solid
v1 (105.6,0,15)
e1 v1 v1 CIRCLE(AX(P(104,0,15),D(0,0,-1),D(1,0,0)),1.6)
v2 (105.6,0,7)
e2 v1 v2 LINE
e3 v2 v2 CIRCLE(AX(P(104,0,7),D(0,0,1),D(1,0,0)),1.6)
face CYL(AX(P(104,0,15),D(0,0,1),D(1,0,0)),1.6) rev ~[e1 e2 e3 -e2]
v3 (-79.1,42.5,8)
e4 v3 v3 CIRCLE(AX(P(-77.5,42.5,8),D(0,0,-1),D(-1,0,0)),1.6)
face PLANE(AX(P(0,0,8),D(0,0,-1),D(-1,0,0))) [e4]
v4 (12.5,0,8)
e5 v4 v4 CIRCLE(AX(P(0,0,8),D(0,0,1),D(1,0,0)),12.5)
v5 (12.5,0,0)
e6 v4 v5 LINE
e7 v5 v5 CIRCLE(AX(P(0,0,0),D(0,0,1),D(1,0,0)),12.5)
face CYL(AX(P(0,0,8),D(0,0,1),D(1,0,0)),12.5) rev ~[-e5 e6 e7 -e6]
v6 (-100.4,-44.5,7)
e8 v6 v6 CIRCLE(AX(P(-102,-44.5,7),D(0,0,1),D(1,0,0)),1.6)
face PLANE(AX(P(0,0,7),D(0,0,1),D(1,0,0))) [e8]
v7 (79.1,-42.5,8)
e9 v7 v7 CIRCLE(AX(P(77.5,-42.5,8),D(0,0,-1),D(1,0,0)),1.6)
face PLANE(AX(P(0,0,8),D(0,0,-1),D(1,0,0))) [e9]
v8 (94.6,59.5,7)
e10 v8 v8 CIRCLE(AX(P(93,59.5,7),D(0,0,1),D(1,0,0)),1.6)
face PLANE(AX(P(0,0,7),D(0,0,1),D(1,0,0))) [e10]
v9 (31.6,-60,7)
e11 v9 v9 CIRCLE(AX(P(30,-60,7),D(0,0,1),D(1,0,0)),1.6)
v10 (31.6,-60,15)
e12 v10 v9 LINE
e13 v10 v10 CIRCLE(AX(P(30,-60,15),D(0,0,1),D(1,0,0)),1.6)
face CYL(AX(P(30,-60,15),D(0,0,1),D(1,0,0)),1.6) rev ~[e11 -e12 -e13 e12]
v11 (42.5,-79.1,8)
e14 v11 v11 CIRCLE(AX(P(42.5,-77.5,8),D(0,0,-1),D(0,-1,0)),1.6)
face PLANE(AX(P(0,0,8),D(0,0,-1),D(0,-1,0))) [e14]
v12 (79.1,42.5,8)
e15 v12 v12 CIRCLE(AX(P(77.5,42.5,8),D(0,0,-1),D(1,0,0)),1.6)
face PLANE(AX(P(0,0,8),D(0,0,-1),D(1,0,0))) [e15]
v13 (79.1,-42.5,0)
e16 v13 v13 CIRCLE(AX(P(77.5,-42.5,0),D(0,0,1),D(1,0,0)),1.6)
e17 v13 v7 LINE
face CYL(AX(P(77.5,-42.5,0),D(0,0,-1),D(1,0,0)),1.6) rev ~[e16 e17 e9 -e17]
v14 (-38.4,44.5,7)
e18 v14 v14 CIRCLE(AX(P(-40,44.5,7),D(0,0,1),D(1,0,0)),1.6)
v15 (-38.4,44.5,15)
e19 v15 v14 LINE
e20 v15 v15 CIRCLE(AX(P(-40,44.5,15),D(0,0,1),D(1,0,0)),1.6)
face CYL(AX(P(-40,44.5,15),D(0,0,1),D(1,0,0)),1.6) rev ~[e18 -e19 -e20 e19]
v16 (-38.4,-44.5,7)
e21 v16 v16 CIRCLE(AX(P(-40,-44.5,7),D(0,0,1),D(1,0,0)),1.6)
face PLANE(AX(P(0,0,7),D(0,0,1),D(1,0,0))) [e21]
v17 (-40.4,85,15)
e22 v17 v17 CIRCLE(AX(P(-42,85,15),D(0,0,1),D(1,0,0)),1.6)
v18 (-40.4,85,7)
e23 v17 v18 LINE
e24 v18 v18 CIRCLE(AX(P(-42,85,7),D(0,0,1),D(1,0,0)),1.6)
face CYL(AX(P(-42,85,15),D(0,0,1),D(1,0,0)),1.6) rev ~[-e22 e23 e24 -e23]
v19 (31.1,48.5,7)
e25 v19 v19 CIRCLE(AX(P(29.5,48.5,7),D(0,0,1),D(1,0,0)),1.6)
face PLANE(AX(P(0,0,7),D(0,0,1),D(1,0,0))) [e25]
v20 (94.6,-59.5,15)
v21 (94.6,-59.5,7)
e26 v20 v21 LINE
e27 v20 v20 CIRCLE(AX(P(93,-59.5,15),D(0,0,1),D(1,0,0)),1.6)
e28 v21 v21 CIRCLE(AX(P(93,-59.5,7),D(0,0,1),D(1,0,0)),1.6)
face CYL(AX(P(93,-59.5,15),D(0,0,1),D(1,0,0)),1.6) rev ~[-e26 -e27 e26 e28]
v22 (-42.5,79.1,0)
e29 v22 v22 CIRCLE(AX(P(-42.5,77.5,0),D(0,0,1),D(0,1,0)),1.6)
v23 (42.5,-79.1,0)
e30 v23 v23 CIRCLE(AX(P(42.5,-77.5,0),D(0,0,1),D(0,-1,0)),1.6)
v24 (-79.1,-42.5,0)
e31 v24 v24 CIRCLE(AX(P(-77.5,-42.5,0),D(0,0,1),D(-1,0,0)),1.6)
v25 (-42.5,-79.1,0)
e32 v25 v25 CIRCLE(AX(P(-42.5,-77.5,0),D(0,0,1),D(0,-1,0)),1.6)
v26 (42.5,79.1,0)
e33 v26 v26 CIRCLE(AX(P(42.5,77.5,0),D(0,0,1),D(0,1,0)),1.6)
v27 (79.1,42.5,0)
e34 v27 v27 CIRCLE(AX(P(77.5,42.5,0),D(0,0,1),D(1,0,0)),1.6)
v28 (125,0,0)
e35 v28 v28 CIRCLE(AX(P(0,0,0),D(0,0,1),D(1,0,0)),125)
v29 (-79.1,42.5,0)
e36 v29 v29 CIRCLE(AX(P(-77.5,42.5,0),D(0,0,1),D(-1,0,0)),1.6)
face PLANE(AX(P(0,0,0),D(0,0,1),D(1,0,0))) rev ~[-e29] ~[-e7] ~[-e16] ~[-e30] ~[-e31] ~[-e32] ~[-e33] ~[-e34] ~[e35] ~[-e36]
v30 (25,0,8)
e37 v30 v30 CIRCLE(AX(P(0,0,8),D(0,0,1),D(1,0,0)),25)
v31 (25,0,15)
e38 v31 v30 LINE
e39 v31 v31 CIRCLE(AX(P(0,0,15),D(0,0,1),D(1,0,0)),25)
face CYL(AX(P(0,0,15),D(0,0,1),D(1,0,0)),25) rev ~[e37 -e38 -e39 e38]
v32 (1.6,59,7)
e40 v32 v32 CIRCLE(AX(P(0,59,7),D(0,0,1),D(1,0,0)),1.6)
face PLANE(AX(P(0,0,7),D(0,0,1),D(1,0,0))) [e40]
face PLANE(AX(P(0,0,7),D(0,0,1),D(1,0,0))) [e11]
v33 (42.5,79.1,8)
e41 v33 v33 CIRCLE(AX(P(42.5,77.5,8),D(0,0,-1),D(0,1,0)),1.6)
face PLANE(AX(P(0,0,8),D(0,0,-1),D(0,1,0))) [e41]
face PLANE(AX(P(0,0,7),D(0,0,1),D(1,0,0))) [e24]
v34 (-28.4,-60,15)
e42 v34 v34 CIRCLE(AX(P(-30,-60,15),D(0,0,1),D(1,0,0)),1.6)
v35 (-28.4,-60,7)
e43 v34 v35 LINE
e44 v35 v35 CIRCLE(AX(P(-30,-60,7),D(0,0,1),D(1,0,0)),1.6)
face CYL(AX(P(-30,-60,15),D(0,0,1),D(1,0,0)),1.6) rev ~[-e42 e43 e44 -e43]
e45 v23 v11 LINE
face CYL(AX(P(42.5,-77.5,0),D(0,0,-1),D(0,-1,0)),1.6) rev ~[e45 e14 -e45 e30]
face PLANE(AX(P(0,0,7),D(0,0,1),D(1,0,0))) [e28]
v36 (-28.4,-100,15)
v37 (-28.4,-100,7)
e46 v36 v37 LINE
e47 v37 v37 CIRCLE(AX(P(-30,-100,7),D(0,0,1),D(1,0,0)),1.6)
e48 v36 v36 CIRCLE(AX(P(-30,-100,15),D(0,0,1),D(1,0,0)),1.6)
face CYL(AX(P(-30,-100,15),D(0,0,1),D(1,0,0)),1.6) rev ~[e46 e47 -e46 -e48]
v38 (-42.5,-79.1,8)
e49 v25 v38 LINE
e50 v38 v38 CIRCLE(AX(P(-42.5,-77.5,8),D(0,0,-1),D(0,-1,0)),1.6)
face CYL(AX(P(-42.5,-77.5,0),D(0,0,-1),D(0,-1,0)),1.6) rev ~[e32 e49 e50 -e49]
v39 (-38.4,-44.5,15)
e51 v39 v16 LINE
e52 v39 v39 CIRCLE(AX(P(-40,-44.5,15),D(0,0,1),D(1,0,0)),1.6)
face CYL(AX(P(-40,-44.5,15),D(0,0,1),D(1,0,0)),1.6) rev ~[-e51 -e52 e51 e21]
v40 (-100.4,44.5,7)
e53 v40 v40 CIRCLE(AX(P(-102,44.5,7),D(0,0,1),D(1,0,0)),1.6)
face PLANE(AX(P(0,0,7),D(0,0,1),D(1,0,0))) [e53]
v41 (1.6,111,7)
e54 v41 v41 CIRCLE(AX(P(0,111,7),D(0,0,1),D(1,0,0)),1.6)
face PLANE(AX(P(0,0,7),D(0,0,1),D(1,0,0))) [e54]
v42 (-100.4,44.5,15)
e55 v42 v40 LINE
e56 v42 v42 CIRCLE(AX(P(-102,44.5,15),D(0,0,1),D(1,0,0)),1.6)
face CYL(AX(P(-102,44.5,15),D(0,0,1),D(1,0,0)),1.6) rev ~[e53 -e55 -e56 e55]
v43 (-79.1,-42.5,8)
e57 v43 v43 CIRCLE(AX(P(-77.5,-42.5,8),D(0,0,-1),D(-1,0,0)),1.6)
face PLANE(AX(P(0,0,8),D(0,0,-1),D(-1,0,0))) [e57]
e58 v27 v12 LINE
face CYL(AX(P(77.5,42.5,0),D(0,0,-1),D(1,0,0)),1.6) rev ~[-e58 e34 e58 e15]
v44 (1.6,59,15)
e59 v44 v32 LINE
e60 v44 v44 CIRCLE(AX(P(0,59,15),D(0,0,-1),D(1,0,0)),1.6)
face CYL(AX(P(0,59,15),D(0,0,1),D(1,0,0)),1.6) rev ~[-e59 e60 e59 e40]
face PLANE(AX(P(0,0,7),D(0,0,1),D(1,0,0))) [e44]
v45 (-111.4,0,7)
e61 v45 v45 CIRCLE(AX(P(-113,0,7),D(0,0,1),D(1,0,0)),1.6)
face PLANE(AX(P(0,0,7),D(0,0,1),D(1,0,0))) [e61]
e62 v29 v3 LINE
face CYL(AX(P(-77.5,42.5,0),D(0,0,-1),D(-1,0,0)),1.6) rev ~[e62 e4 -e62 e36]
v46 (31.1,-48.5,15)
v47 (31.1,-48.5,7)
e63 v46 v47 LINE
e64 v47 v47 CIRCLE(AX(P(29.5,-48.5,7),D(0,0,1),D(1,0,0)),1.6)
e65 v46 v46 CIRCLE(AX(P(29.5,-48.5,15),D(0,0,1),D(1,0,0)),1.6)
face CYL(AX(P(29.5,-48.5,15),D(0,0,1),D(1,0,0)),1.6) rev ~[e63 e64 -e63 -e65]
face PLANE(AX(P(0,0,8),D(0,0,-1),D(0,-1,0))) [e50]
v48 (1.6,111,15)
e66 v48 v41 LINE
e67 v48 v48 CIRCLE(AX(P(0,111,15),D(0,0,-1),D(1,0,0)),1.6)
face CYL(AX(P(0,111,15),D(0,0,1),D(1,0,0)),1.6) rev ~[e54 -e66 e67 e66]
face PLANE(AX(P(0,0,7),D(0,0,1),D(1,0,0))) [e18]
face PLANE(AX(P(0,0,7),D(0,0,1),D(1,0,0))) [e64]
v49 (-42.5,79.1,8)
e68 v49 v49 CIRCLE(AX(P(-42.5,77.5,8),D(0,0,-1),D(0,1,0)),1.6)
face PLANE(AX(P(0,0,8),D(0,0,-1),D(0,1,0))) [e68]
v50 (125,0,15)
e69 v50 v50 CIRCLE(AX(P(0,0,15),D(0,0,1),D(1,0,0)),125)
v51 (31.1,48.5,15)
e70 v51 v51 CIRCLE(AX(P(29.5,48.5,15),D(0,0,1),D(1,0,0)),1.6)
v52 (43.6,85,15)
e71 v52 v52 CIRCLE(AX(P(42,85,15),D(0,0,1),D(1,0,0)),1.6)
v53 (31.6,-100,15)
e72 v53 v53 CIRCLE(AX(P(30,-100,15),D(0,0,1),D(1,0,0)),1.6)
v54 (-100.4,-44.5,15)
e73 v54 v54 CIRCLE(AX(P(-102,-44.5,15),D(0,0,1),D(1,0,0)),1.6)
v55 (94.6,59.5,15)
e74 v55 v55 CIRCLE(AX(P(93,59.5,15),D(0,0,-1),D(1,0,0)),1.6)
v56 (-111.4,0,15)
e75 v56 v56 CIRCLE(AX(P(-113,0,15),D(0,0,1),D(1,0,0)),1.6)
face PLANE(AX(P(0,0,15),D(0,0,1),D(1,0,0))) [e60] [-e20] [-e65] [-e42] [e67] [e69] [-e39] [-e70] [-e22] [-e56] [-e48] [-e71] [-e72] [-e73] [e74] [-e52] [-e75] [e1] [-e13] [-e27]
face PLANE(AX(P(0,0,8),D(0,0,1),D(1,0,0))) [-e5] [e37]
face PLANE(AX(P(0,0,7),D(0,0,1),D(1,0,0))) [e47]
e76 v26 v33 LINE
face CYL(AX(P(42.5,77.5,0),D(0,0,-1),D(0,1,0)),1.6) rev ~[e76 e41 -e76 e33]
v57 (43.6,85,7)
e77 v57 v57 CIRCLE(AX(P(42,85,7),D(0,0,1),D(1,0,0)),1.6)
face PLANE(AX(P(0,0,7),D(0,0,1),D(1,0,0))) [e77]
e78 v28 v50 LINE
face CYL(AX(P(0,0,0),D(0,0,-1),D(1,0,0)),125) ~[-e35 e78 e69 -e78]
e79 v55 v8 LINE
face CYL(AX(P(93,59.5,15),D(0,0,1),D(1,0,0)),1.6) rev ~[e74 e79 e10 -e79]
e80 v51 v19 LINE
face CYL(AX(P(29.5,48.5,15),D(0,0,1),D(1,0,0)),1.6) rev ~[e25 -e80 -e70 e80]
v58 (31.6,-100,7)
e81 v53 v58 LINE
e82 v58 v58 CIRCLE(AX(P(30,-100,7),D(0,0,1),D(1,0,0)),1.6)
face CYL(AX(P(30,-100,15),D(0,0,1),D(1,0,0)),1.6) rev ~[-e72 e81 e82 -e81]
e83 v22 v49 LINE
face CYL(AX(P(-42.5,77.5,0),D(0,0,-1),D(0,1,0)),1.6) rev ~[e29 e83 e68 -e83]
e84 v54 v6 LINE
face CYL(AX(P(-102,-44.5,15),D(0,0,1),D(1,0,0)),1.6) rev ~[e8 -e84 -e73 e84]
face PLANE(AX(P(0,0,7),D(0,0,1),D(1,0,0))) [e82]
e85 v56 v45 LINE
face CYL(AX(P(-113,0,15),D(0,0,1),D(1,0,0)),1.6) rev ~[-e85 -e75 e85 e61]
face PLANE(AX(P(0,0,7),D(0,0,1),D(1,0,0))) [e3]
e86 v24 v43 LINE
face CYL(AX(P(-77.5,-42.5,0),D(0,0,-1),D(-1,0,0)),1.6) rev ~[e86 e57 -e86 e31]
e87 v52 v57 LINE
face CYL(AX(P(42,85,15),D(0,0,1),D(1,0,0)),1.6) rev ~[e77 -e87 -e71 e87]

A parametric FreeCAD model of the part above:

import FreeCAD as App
import Part
import Sketcher
from FreeCAD import Vector

doc = App.newDocument("Part")
body = doc.addObject("PartDesign::Body", "Body")

# Sketch on XY plane
sketch1 = body.newObject("Sketcher::SketchObject", "Sketch")
sketch1.AttachmentSupport = (doc.getObject("XY_Plane"), [""])
sketch1.MapMode = "FlatFace"
sketch1.addGeometry(Part.Circle(Vector(0, 0, 0), Vector(0, 0, 1), 125), False)
sketch1.addConstraint([
    Sketcher.Constraint("Coincident", 0, 3, -1, 1),
    Sketcher.Constraint("Diameter", 0, 250.0),
])
pad1 = body.newObject("PartDesign::Pad", "Pad")
pad1.Profile = sketch1
pad1.Length = 15

# Sketch on XY plane
sketch2 = body.newObject("Sketcher::SketchObject", "Sketch001")
sketch2.AttachmentSupport = (doc.getObject("XY_Plane"), [""])
sketch2.MapMode = "FlatFace"
sketch2.AttachmentOffset = App.Placement(Vector(0, 0, 15), App.Rotation())
sketch2.addGeometry(Part.Circle(Vector(0, 0, 0), Vector(0, 0, 1), 25), False)
sketch2.addConstraint([
    Sketcher.Constraint("Coincident", 0, 3, -1, 1),
    Sketcher.Constraint("Diameter", 0, 50.0),
])
pocket1 = body.newObject("PartDesign::Pocket", "Pocket")
pocket1.Profile = sketch2
pocket1.Length = 7

# Sketch on XY plane
sketch3 = body.newObject("Sketcher::SketchObject", "Sketch002")
sketch3.AttachmentSupport = (doc.getObject("XY_Plane"), [""])
sketch3.MapMode = "FlatFace"
sketch3.AttachmentOffset = App.Placement(Vector(0, 0, 8), App.Rotation())
sketch3.addGeometry(Part.Circle(Vector(0, 0, 0), Vector(0, 0, 1), 12.5), False)
sketch3.addConstraint([
    Sketcher.Constraint("Coincident", 0, 3, -1, 1),
    Sketcher.Constraint("Diameter", 0, 25.0),
])
pocket2 = body.newObject("PartDesign::Pocket", "Pocket001")
pocket2.Profile = sketch3
pocket2.Type = "ThroughAll"

# Sketch on XY plane
sketch4 = body.newObject("Sketcher::SketchObject", "Sketch003")
sketch4.AttachmentSupport = (doc.getObject("XY_Plane"), [""])
sketch4.MapMode = "FlatFace"
sketch4.AttachmentOffset = App.Placement(Vector(0, 0, 15), App.Rotation())
sketch4.addGeometry([
    Part.Circle(Vector(29.5, -48.5, 0), Vector(0, 0, 1), 1.6),  # 0
    Part.Circle(Vector(104, 0, 0), Vector(0, 0, 1), 1.6),  # 1
    Part.Circle(Vector(93, 59.5, 0), Vector(0, 0, 1), 1.6),  # 2
    Part.Circle(Vector(29.5, 48.5, 0), Vector(0, 0, 1), 1.6),  # 3
    Part.Circle(Vector(93, -59.5, 0), Vector(0, 0, 1), 1.6),  # 4
], False)
sketch4.addConstraint([
    Sketcher.Constraint("Equal", 0, 1),
    Sketcher.Constraint("Equal", 1, 2),
    Sketcher.Constraint("Equal", 2, 3),
    Sketcher.Constraint("Equal", 3, 4),
    Sketcher.Constraint("Symmetric", 0, 3, 3, 3, -1),
    Sketcher.Constraint("Symmetric", 2, 3, 4, 3, -1),
    Sketcher.Constraint("PointOnObject", 1, 3, -1),
    Sketcher.Constraint("Diameter", 0, 3.2),
    Sketcher.Constraint("DistanceX", -1, 1, 1, 3, 104.0),
    Sketcher.Constraint("DistanceX", -1, 1, 2, 3, 93.0),
    Sketcher.Constraint("DistanceY", 0, 3, 3, 3, 97.0),
    Sketcher.Constraint("DistanceY", 4, 3, 2, 3, 119.0),
    Sketcher.Constraint("DistanceX", -1, 1, 0, 3, 29.5),
])
pocket3 = body.newObject("PartDesign::Pocket", "Pocket002")
pocket3.Profile = sketch4
pocket3.Length = 8

# Sketch on XY plane
sketch5 = body.newObject("Sketcher::SketchObject", "Sketch004")
sketch5.AttachmentSupport = (doc.getObject("XY_Plane"), [""])
sketch5.MapMode = "FlatFace"
sketch5.AttachmentOffset = App.Placement(Vector(0, 0, 15), App.Rotation())
sketch5.addGeometry([
    Part.Circle(Vector(-40, 44.5, 0), Vector(0, 0, 1), 1.6),  # 0
    Part.Circle(Vector(-40, -44.5, 0), Vector(0, 0, 1), 1.6),  # 1
    Part.Circle(Vector(-102, 44.5, 0), Vector(0, 0, 1), 1.6),  # 2
    Part.Circle(Vector(-102, -44.5, 0), Vector(0, 0, 1), 1.6),  # 3
    Part.Circle(Vector(-113, 0, 0), Vector(0, 0, 1), 1.6),  # 4
], False)
sketch5.addConstraint([
    Sketcher.Constraint("Equal", 0, 1),
    Sketcher.Constraint("Equal", 1, 2),
    Sketcher.Constraint("Equal", 2, 3),
    Sketcher.Constraint("Equal", 3, 4),
    Sketcher.Constraint("Symmetric", 0, 3, 1, 3, -1),
    Sketcher.Constraint("Symmetric", 2, 3, 3, 3, -1),
    Sketcher.Constraint("PointOnObject", 4, 3, -1),
    Sketcher.Constraint("Horizontal", 0, 3, 2, 3),
    Sketcher.Constraint("Diameter", 0, 3.2),
    Sketcher.Constraint("DistanceX", 0, 3, -1, 1, 40.0),
    Sketcher.Constraint("DistanceY", 1, 3, 0, 3, 89.0),
    Sketcher.Constraint("DistanceX", 2, 3, 0, 3, 62.0),
    Sketcher.Constraint("DistanceX", 4, 3, 2, 3, 11.0),
])
pocket4 = body.newObject("PartDesign::Pocket", "Pocket003")
pocket4.Profile = sketch5
pocket4.Length = 8

# Sketch on XY plane
sketch6 = body.newObject("Sketcher::SketchObject", "Sketch005")
sketch6.AttachmentSupport = (doc.getObject("XY_Plane"), [""])
sketch6.MapMode = "FlatFace"
sketch6.AttachmentOffset = App.Placement(Vector(0, 0, 15), App.Rotation())
sketch6.addGeometry([
    Part.Circle(Vector(-42, 85, 0), Vector(0, 0, 1), 1.6),
    Part.Circle(Vector(0, 111, 0), Vector(0, 0, 1), 1.6),
    Part.Circle(Vector(0, 59, 0), Vector(0, 0, 1), 1.6),
    Part.Circle(Vector(42, 85, 0), Vector(0, 0, 1), 1.6),
], False)
sketch6.addConstraint([
    Sketcher.Constraint("Equal", 0, 1),
    Sketcher.Constraint("Equal", 1, 2),
    Sketcher.Constraint("Equal", 2, 3),
    Sketcher.Constraint("Symmetric", 0, 3, 3, 3, -2),
    Sketcher.Constraint("PointOnObject", 1, 3, -2),
    Sketcher.Constraint("PointOnObject", 2, 3, -2),
    Sketcher.Constraint("Diameter", 0, 3.2),
    Sketcher.Constraint("DistanceY", -1, 1, 0, 3, 85.0),
    Sketcher.Constraint("DistanceY", 2, 3, 1, 3, 52.0),
    Sketcher.Constraint("DistanceX", 0, 3, 3, 3, 84.0),
    Sketcher.Constraint("DistanceY", -1, 1, 1, 3, 111.0),
])
pocket5 = body.newObject("PartDesign::Pocket", "Pocket004")
pocket5.Profile = sketch6
pocket5.Length = 8

# Sketch on XY plane
sketch7 = body.newObject("Sketcher::SketchObject", "Sketch006")
sketch7.AttachmentSupport = (doc.getObject("XY_Plane"), [""])
sketch7.MapMode = "FlatFace"
sketch7.AttachmentOffset = App.Placement(Vector(0, 0, 15), App.Rotation())
sketch7.addGeometry([
    Part.Circle(Vector(-30, -60, 0), Vector(0, 0, 1), 1.6),
    Part.Circle(Vector(30, -60, 0), Vector(0, 0, 1), 1.6),
    Part.Circle(Vector(-30, -100, 0), Vector(0, 0, 1), 1.6),
    Part.Circle(Vector(30, -100, 0), Vector(0, 0, 1), 1.6),
], False)
sketch7.addConstraint([
    Sketcher.Constraint("Equal", 0, 1),
    Sketcher.Constraint("Equal", 1, 2),
    Sketcher.Constraint("Equal", 2, 3),
    Sketcher.Constraint("Symmetric", 0, 3, 1, 3, -2),
    Sketcher.Constraint("Symmetric", 2, 3, 3, 3, -2),
    Sketcher.Constraint("Vertical", 0, 3, 2, 3),
    Sketcher.Constraint("Diameter", 0, 3.2),
    Sketcher.Constraint("DistanceY", 0, 3, -1, 1, 60.0),
    Sketcher.Constraint("DistanceX", 0, 3, 1, 3, 60.0),
    Sketcher.Constraint("DistanceY", 2, 3, 0, 3, 40.0),
])
pocket6 = body.newObject("PartDesign::Pocket", "Pocket005")
pocket6.Profile = sketch7
pocket6.Length = 8

# Sketch on XY plane
sketch8 = body.newObject("Sketcher::SketchObject", "Sketch007")
sketch8.AttachmentSupport = (doc.getObject("XY_Plane"), [""])
sketch8.MapMode = "FlatFace"
sketch8.addGeometry([
    Part.Circle(Vector(-77.5, 42.5, 0), Vector(0, 0, 1), 1.6),
    Part.Circle(Vector(-77.5, -42.5, 0), Vector(0, 0, 1), 1.6),
], False)
sketch8.addConstraint([
    Sketcher.Constraint("Equal", 0, 1),
    Sketcher.Constraint("Symmetric", 0, 3, 1, 3, -1),
    Sketcher.Constraint("Diameter", 0, 3.2),
    Sketcher.Constraint("DistanceY", 1, 3, 0, 3, 85.0),
    Sketcher.Constraint("DistanceX", 0, 3, -1, 1, 77.5),
])
pocket7 = body.newObject("PartDesign::Pocket", "Pocket006")
pocket7.Profile = sketch8
pocket7.Length = 8
pocket7.Reversed = True
doc.recompute()

polarpattern = body.newObject("PartDesign::PolarPattern", "PolarPattern")
polarpattern.Originals = [pocket7]
polarpattern.Axis = (doc.getObject("Z_Axis"), [""])
polarpattern.Angle = 360
polarpattern.Occurrences = 4
body.Tip = polarpattern

doc.recompute()
